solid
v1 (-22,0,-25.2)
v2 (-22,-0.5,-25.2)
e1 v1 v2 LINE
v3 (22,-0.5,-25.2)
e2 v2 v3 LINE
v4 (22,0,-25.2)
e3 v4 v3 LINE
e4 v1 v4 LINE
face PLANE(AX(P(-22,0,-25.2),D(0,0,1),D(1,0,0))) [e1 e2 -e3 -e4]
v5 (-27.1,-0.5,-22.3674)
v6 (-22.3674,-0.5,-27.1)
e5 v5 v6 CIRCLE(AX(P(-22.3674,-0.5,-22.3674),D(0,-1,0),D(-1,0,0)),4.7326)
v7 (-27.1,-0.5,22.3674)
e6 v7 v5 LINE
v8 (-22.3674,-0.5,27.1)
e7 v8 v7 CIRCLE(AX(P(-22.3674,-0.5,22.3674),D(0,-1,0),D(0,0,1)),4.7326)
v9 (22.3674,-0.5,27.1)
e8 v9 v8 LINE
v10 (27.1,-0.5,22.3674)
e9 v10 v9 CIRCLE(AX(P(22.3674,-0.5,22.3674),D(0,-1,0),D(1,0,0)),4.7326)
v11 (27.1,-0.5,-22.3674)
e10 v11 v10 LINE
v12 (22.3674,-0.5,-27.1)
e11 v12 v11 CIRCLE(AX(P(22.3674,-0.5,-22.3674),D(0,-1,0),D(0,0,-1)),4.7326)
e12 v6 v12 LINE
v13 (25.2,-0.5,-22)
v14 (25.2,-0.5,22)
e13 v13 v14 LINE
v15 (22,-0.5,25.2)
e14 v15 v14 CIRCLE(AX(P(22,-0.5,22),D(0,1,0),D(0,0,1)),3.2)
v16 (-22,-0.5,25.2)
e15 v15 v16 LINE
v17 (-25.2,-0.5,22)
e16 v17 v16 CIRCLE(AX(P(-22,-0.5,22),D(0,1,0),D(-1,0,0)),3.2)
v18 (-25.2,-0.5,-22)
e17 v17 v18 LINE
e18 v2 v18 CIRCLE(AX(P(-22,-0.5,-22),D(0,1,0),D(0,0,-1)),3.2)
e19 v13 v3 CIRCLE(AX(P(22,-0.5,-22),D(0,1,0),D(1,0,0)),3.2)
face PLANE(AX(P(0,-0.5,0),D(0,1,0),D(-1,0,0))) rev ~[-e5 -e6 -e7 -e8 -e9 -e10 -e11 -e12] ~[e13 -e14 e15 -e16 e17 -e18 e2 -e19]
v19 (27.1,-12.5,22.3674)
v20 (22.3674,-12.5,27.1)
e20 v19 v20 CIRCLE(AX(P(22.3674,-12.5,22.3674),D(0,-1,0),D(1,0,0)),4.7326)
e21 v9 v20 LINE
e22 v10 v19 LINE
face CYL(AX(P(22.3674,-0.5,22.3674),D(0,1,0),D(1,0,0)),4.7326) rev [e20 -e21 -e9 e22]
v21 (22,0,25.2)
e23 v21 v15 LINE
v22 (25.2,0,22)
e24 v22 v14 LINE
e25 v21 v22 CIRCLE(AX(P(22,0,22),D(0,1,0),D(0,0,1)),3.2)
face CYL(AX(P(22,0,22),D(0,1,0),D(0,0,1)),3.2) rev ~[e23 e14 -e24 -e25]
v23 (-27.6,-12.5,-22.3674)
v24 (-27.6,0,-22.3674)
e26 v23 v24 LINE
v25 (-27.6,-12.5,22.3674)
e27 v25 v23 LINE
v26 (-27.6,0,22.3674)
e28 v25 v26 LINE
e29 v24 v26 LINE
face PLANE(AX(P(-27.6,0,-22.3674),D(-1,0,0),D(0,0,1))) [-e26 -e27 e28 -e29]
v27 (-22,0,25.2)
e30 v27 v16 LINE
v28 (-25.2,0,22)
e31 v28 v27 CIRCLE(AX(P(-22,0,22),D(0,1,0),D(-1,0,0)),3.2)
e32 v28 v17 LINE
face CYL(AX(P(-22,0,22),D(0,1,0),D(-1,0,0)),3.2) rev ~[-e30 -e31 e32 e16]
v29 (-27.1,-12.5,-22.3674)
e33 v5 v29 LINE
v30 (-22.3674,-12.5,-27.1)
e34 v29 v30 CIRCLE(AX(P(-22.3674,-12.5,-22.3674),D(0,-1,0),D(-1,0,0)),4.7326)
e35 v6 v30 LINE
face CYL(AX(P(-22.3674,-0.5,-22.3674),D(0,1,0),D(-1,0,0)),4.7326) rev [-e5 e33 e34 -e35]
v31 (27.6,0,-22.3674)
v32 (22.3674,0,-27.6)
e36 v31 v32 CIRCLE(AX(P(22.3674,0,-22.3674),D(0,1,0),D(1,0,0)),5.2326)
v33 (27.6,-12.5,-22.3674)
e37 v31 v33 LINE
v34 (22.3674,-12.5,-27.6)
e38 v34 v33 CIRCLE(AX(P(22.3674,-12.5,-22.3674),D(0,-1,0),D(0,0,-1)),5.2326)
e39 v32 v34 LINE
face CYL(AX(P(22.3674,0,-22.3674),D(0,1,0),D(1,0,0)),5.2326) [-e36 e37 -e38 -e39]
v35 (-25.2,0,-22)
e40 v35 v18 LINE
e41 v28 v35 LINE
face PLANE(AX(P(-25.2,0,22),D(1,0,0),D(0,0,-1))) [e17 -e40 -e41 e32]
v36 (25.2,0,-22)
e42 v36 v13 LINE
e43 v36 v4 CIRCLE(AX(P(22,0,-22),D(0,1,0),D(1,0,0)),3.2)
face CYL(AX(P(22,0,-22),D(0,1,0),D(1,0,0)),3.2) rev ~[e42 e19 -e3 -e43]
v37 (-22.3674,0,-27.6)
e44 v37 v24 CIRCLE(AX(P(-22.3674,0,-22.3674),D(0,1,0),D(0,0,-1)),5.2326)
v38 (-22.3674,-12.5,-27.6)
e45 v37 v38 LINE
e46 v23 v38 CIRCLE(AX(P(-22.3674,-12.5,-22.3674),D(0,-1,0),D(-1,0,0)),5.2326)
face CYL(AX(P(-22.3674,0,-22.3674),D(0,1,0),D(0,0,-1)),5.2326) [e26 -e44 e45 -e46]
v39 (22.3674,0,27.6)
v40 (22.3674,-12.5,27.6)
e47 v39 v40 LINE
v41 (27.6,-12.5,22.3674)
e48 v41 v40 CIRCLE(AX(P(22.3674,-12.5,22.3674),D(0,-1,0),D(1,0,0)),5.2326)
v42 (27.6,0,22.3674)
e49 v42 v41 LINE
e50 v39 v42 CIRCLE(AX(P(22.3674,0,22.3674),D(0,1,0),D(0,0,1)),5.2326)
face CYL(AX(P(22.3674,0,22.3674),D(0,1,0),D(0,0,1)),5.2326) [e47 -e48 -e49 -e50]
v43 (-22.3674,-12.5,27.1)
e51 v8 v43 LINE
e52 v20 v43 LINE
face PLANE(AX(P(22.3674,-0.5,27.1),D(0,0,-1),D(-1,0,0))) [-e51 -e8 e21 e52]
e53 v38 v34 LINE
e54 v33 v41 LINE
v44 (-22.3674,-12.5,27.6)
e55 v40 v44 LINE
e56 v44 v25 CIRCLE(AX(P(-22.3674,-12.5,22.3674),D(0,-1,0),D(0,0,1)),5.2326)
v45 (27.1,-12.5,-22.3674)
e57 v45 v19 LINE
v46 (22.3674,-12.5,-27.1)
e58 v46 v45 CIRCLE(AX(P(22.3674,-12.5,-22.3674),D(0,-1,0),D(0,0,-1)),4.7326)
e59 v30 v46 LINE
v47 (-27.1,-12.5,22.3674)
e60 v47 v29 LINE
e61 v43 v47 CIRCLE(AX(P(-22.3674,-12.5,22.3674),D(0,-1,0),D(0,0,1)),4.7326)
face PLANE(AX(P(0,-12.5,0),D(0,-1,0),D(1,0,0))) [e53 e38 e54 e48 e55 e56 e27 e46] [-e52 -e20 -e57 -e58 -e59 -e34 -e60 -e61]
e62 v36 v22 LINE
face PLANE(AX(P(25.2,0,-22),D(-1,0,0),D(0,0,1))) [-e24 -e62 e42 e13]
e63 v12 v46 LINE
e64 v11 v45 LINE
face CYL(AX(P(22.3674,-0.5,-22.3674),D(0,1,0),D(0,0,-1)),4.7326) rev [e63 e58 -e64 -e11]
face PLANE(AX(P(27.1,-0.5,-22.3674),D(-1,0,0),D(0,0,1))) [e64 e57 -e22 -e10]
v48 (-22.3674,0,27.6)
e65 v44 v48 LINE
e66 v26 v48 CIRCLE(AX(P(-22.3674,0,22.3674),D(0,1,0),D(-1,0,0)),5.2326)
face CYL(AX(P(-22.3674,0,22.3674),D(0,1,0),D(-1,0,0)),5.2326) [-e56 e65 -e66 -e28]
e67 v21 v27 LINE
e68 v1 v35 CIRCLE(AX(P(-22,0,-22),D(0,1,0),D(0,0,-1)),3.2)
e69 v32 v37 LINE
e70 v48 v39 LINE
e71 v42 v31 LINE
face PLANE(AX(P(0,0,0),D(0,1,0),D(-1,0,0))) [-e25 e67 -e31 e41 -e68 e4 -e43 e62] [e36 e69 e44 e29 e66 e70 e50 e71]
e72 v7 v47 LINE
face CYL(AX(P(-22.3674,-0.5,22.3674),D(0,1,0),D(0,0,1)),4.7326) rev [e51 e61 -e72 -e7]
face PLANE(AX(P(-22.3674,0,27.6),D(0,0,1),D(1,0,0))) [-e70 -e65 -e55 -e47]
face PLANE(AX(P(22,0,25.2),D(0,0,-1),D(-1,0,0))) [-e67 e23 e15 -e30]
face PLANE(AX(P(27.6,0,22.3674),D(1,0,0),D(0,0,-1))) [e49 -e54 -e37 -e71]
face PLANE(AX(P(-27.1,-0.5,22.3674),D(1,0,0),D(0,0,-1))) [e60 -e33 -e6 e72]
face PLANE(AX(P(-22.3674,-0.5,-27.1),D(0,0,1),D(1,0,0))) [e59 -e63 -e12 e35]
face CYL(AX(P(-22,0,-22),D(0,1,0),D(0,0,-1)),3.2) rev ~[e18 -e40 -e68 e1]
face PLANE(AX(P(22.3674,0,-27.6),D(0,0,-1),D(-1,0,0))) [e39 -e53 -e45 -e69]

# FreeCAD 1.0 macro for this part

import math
import FreeCAD as App
import Part
import Sketcher
Q = App.Units.Quantity

doc = App.newDocument("Part")
body = doc.addObject("PartDesign::Body", "Body")

sketch1 = doc.addObject("Sketcher::SketchObject", "Sketch")
body.addObject(sketch1)
sketch1.AttachmentSupport = (doc.XZ_Plane, [""])
sketch1.MapMode = "FlatFace"
sketch1.addGeometry([
    Part.ArcOfCircle(Part.Circle(App.Vector(-22.3674, -22.3674, 0), App.Vector(0, 0, 1), 5.2326), math.radians(180), math.radians(270)),
    Part.LineSegment(App.Vector(-27.6, -22.3674, 0), App.Vector(-27.6, 22.3674, 0)),
    Part.ArcOfCircle(Part.Circle(App.Vector(-22.3674, 22.3674, 0), App.Vector(0, 0, 1), 5.2326), math.radians(90), math.radians(180)),
    Part.LineSegment(App.Vector(-22.3674, 27.6, 0), App.Vector(22.3674, 27.6, 0)),
    Part.ArcOfCircle(Part.Circle(App.Vector(22.3674, 22.3674, 0), App.Vector(0, 0, 1), 5.2326), math.radians(0), math.radians(90)),
    Part.LineSegment(App.Vector(27.6, 22.3674, 0), App.Vector(27.6, -22.3674, 0)),
    Part.ArcOfCircle(Part.Circle(App.Vector(22.3674, -22.3674, 0), App.Vector(0, 0, 1), 5.2326), math.radians(-90), math.radians(0)),
    Part.LineSegment(App.Vector(22.3674, -27.6, 0), App.Vector(-22.3674, -27.6, 0)),
    Part.ArcOfCircle(Part.Circle(App.Vector(-22, -22, 0), App.Vector(0, 0, 1), 3.2), math.radians(180), math.radians(270)),
    Part.LineSegment(App.Vector(-22, -25.2, 0), App.Vector(22, -25.2, 0)),
    Part.ArcOfCircle(Part.Circle(App.Vector(22, -22, 0), App.Vector(0, 0, 1), 3.2), math.radians(-90), math.radians(0)),
    Part.LineSegment(App.Vector(25.2, -22, 0), App.Vector(25.2, 22, 0)),
    Part.ArcOfCircle(Part.Circle(App.Vector(22, 22, 0), App.Vector(0, 0, 1), 3.2), math.radians(0), math.radians(90)),
    Part.LineSegment(App.Vector(22, 25.2, 0), App.Vector(-22, 25.2, 0)),
    Part.ArcOfCircle(Part.Circle(App.Vector(-22, 22, 0), App.Vector(0, 0, 1), 3.2), math.radians(90), math.radians(180)),
    Part.LineSegment(App.Vector(-25.2, 22, 0), App.Vector(-25.2, -22, 0)),
], False)
sketch1.addConstraint([
    Sketcher.Constraint("Tangent", 0, 1, 1, 1),
    Sketcher.Constraint("Tangent", 1, 2, 2, 2),
    Sketcher.Constraint("Tangent", 2, 1, 3, 1),
    Sketcher.Constraint("Tangent", 3, 2, 4, 2),
    Sketcher.Constraint("Tangent", 4, 1, 5, 1),
    Sketcher.Constraint("Tangent", 5, 2, 6, 2),
    Sketcher.Constraint("Tangent", 6, 1, 7, 1),
    Sketcher.Constraint("Tangent", 7, 2, 0, 2),
    Sketcher.Constraint("Tangent", 8, 2, 9, 1),
    Sketcher.Constraint("Tangent", 9, 2, 10, 1),
    Sketcher.Constraint("Tangent", 10, 2, 11, 1),
    Sketcher.Constraint("Tangent", 11, 2, 12, 1),
    Sketcher.Constraint("Tangent", 12, 2, 13, 1),
    Sketcher.Constraint("Tangent", 13, 2, 14, 1),
    Sketcher.Constraint("Tangent", 14, 2, 15, 1),
    Sketcher.Constraint("Tangent", 15, 2, 8, 1),
    Sketcher.Constraint("Vertical", 1),
    Sketcher.Constraint("Horizontal", 3),
    Sketcher.Constraint("Vertical", 5),
    Sketcher.Constraint("Horizontal", 7),
    Sketcher.Constraint("Horizontal", 9),
    Sketcher.Constraint("Vertical", 11),
    Sketcher.Constraint("Horizontal", 13),
    Sketcher.Constraint("Vertical", 15),
    Sketcher.Constraint("Equal", 0, 2),
    Sketcher.Constraint("Equal", 2, 4),
    Sketcher.Constraint("Equal", 4, 6),
    Sketcher.Constraint("Equal", 8, 10),
    Sketcher.Constraint("Equal", 10, 12),
    Sketcher.Constraint("Equal", 12, 14),
    Sketcher.Constraint("Symmetric", 0, 3, 4, 3, -1, 1),
    Sketcher.Constraint("Symmetric", 8, 3, 12, 3, -1, 1),
    Sketcher.Constraint("Equal", 7, 1),
    Sketcher.Constraint("Equal", 13, 11),
    Sketcher.Constraint("Radius", 8, Q("3.2 mm")),
    Sketcher.Constraint("DistanceX", 9, 1, 9, 2, Q("44 mm")),
    Sketcher.Constraint("DistanceX", 0, 1, -1, 1, Q("27.6 mm")),
    Sketcher.Constraint("Radius", 0, Q("5.2326 mm")),
])
pad1 = doc.addObject("PartDesign::Pad", "Pad")
body.addObject(pad1)
pad1.Profile = sketch1
pad1.Length = 0.5

sketch2 = doc.addObject("Sketcher::SketchObject", "Sketch001")
body.addObject(sketch2)
sketch2.AttachmentSupport = (doc.XZ_Plane, [""])
sketch2.MapMode = "FlatFace"
sketch2.AttachmentOffset = App.Placement(App.Vector(0, 0, 0.5), App.Rotation())
sketch2.addGeometry([
    Part.ArcOfCircle(Part.Circle(App.Vector(-22.3674, 22.3674, 0), App.Vector(0, 0, 1), 5.2326), math.radians(90), math.radians(180)),
    Part.LineSegment(App.Vector(-27.6, 22.3674, 0), App.Vector(-27.6, -22.3674, 0)),
    Part.ArcOfCircle(Part.Circle(App.Vector(-22.3674, -22.3674, 0), App.Vector(0, 0, 1), 5.2326), math.radians(180), math.radians(270)),
    Part.LineSegment(App.Vector(-22.3674, -27.6, 0), App.Vector(22.3674, -27.6, 0)),
    Part.ArcOfCircle(Part.Circle(App.Vector(22.3674, -22.3674, 0), App.Vector(0, 0, 1), 5.2326), math.radians(-90), math.radians(0)),
    Part.LineSegment(App.Vector(27.6, -22.3674, 0), App.Vector(27.6, 22.3674, 0)),
    Part.ArcOfCircle(Part.Circle(App.Vector(22.3674, 22.3674, 0), App.Vector(0, 0, 1), 5.2326), math.radians(0), math.radians(90)),
    Part.LineSegment(App.Vector(22.3674, 27.6, 0), App.Vector(-22.3674, 27.6, 0)),
    Part.LineSegment(App.Vector(-27.1, -22.3674, 0), App.Vector(-27.1, 22.3674, 0)),
    Part.ArcOfCircle(Part.Circle(App.Vector(-22.3674, 22.3674, 0), App.Vector(0, 0, 1), 4.7326), math.radians(90), math.radians(180)),
    Part.LineSegment(App.Vector(-22.3674, 27.1, 0), App.Vector(22.3674, 27.1, 0)),
    Part.ArcOfCircle(Part.Circle(App.Vector(22.3674, 22.3674, 0), App.Vector(0, 0, 1), 4.7326), math.radians(0), math.radians(90)),
    Part.LineSegment(App.Vector(27.1, 22.3674, 0), App.Vector(27.1, -22.3674, 0)),
    Part.ArcOfCircle(Part.Circle(App.Vector(22.3674, -22.3674, 0), App.Vector(0, 0, 1), 4.7326), math.radians(-90), math.radians(0)),
    Part.LineSegment(App.Vector(22.3674, -27.1, 0), App.Vector(-22.3674, -27.1, 0)),
    Part.ArcOfCircle(Part.Circle(App.Vector(-22.3674, -22.3674, 0), App.Vector(0, 0, 1), 4.7326), math.radians(180), math.radians(270)),
], False)
sketch2.addConstraint([
    Sketcher.Constraint("Tangent", 0, 2, 1, 1),
    Sketcher.Constraint("Tangent", 1, 2, 2, 1),
    Sketcher.Constraint("Tangent", 2, 2, 3, 1),
    Sketcher.Constraint("Tangent", 3, 2, 4, 1),
    Sketcher.Constraint("Tangent", 4, 2, 5, 1),
    Sketcher.Constraint("Tangent", 5, 2, 6, 1),
    Sketcher.Constraint("Tangent", 6, 2, 7, 1),
    Sketcher.Constraint("Tangent", 7, 2, 0, 1),
    Sketcher.Constraint("Tangent", 8, 2, 9, 2),
    Sketcher.Constraint("Tangent", 9, 1, 10, 1),
    Sketcher.Constraint("Tangent", 10, 2, 11, 2),
    Sketcher.Constraint("Tangent", 11, 1, 12, 1),
    Sketcher.Constraint("Tangent", 12, 2, 13, 2),
    Sketcher.Constraint("Tangent", 13, 1, 14, 1),
    Sketcher.Constraint("Tangent", 14, 2, 15, 2),
    Sketcher.Constraint("Tangent", 15, 1, 8, 1),
    Sketcher.Constraint("Vertical", 1),
    Sketcher.Constraint("Horizontal", 3),
    Sketcher.Constraint("Vertical", 5),
    Sketcher.Constraint("Horizontal", 7),
    Sketcher.Constraint("Vertical", 8),
    Sketcher.Constraint("Horizontal", 10),
    Sketcher.Constraint("Vertical", 12),
    Sketcher.Constraint("Horizontal", 14),
    Sketcher.Constraint("Coincident", 9, 3, 0, 3),
    Sketcher.Constraint("Coincident", 11, 3, 6, 3),
    Sketcher.Constraint("Coincident", 13, 3, 4, 3),
    Sketcher.Constraint("Equal", 0, 2),
    Sketcher.Constraint("Equal", 2, 4),
    Sketcher.Constraint("Equal", 4, 6),
    Sketcher.Constraint("Equal", 13, 15),
    Sketcher.Constraint("Symmetric", 0, 3, 4, 3, -1, 1),
    Sketcher.Constraint("Equal", 14, 1),
    Sketcher.Constraint("DistanceX", 0, 2, 8, 2, Q("0.5 mm")),
    Sketcher.Constraint("DistanceX", 0, 2, -1, 1, Q("27.6 mm")),
    Sketcher.Constraint("Radius", 0, Q("5.2326 mm")),
])
pad2 = doc.addObject("PartDesign::Pad", "Pad001")
body.addObject(pad2)
pad2.Profile = sketch2
pad2.Length = 12

doc.recompute()
